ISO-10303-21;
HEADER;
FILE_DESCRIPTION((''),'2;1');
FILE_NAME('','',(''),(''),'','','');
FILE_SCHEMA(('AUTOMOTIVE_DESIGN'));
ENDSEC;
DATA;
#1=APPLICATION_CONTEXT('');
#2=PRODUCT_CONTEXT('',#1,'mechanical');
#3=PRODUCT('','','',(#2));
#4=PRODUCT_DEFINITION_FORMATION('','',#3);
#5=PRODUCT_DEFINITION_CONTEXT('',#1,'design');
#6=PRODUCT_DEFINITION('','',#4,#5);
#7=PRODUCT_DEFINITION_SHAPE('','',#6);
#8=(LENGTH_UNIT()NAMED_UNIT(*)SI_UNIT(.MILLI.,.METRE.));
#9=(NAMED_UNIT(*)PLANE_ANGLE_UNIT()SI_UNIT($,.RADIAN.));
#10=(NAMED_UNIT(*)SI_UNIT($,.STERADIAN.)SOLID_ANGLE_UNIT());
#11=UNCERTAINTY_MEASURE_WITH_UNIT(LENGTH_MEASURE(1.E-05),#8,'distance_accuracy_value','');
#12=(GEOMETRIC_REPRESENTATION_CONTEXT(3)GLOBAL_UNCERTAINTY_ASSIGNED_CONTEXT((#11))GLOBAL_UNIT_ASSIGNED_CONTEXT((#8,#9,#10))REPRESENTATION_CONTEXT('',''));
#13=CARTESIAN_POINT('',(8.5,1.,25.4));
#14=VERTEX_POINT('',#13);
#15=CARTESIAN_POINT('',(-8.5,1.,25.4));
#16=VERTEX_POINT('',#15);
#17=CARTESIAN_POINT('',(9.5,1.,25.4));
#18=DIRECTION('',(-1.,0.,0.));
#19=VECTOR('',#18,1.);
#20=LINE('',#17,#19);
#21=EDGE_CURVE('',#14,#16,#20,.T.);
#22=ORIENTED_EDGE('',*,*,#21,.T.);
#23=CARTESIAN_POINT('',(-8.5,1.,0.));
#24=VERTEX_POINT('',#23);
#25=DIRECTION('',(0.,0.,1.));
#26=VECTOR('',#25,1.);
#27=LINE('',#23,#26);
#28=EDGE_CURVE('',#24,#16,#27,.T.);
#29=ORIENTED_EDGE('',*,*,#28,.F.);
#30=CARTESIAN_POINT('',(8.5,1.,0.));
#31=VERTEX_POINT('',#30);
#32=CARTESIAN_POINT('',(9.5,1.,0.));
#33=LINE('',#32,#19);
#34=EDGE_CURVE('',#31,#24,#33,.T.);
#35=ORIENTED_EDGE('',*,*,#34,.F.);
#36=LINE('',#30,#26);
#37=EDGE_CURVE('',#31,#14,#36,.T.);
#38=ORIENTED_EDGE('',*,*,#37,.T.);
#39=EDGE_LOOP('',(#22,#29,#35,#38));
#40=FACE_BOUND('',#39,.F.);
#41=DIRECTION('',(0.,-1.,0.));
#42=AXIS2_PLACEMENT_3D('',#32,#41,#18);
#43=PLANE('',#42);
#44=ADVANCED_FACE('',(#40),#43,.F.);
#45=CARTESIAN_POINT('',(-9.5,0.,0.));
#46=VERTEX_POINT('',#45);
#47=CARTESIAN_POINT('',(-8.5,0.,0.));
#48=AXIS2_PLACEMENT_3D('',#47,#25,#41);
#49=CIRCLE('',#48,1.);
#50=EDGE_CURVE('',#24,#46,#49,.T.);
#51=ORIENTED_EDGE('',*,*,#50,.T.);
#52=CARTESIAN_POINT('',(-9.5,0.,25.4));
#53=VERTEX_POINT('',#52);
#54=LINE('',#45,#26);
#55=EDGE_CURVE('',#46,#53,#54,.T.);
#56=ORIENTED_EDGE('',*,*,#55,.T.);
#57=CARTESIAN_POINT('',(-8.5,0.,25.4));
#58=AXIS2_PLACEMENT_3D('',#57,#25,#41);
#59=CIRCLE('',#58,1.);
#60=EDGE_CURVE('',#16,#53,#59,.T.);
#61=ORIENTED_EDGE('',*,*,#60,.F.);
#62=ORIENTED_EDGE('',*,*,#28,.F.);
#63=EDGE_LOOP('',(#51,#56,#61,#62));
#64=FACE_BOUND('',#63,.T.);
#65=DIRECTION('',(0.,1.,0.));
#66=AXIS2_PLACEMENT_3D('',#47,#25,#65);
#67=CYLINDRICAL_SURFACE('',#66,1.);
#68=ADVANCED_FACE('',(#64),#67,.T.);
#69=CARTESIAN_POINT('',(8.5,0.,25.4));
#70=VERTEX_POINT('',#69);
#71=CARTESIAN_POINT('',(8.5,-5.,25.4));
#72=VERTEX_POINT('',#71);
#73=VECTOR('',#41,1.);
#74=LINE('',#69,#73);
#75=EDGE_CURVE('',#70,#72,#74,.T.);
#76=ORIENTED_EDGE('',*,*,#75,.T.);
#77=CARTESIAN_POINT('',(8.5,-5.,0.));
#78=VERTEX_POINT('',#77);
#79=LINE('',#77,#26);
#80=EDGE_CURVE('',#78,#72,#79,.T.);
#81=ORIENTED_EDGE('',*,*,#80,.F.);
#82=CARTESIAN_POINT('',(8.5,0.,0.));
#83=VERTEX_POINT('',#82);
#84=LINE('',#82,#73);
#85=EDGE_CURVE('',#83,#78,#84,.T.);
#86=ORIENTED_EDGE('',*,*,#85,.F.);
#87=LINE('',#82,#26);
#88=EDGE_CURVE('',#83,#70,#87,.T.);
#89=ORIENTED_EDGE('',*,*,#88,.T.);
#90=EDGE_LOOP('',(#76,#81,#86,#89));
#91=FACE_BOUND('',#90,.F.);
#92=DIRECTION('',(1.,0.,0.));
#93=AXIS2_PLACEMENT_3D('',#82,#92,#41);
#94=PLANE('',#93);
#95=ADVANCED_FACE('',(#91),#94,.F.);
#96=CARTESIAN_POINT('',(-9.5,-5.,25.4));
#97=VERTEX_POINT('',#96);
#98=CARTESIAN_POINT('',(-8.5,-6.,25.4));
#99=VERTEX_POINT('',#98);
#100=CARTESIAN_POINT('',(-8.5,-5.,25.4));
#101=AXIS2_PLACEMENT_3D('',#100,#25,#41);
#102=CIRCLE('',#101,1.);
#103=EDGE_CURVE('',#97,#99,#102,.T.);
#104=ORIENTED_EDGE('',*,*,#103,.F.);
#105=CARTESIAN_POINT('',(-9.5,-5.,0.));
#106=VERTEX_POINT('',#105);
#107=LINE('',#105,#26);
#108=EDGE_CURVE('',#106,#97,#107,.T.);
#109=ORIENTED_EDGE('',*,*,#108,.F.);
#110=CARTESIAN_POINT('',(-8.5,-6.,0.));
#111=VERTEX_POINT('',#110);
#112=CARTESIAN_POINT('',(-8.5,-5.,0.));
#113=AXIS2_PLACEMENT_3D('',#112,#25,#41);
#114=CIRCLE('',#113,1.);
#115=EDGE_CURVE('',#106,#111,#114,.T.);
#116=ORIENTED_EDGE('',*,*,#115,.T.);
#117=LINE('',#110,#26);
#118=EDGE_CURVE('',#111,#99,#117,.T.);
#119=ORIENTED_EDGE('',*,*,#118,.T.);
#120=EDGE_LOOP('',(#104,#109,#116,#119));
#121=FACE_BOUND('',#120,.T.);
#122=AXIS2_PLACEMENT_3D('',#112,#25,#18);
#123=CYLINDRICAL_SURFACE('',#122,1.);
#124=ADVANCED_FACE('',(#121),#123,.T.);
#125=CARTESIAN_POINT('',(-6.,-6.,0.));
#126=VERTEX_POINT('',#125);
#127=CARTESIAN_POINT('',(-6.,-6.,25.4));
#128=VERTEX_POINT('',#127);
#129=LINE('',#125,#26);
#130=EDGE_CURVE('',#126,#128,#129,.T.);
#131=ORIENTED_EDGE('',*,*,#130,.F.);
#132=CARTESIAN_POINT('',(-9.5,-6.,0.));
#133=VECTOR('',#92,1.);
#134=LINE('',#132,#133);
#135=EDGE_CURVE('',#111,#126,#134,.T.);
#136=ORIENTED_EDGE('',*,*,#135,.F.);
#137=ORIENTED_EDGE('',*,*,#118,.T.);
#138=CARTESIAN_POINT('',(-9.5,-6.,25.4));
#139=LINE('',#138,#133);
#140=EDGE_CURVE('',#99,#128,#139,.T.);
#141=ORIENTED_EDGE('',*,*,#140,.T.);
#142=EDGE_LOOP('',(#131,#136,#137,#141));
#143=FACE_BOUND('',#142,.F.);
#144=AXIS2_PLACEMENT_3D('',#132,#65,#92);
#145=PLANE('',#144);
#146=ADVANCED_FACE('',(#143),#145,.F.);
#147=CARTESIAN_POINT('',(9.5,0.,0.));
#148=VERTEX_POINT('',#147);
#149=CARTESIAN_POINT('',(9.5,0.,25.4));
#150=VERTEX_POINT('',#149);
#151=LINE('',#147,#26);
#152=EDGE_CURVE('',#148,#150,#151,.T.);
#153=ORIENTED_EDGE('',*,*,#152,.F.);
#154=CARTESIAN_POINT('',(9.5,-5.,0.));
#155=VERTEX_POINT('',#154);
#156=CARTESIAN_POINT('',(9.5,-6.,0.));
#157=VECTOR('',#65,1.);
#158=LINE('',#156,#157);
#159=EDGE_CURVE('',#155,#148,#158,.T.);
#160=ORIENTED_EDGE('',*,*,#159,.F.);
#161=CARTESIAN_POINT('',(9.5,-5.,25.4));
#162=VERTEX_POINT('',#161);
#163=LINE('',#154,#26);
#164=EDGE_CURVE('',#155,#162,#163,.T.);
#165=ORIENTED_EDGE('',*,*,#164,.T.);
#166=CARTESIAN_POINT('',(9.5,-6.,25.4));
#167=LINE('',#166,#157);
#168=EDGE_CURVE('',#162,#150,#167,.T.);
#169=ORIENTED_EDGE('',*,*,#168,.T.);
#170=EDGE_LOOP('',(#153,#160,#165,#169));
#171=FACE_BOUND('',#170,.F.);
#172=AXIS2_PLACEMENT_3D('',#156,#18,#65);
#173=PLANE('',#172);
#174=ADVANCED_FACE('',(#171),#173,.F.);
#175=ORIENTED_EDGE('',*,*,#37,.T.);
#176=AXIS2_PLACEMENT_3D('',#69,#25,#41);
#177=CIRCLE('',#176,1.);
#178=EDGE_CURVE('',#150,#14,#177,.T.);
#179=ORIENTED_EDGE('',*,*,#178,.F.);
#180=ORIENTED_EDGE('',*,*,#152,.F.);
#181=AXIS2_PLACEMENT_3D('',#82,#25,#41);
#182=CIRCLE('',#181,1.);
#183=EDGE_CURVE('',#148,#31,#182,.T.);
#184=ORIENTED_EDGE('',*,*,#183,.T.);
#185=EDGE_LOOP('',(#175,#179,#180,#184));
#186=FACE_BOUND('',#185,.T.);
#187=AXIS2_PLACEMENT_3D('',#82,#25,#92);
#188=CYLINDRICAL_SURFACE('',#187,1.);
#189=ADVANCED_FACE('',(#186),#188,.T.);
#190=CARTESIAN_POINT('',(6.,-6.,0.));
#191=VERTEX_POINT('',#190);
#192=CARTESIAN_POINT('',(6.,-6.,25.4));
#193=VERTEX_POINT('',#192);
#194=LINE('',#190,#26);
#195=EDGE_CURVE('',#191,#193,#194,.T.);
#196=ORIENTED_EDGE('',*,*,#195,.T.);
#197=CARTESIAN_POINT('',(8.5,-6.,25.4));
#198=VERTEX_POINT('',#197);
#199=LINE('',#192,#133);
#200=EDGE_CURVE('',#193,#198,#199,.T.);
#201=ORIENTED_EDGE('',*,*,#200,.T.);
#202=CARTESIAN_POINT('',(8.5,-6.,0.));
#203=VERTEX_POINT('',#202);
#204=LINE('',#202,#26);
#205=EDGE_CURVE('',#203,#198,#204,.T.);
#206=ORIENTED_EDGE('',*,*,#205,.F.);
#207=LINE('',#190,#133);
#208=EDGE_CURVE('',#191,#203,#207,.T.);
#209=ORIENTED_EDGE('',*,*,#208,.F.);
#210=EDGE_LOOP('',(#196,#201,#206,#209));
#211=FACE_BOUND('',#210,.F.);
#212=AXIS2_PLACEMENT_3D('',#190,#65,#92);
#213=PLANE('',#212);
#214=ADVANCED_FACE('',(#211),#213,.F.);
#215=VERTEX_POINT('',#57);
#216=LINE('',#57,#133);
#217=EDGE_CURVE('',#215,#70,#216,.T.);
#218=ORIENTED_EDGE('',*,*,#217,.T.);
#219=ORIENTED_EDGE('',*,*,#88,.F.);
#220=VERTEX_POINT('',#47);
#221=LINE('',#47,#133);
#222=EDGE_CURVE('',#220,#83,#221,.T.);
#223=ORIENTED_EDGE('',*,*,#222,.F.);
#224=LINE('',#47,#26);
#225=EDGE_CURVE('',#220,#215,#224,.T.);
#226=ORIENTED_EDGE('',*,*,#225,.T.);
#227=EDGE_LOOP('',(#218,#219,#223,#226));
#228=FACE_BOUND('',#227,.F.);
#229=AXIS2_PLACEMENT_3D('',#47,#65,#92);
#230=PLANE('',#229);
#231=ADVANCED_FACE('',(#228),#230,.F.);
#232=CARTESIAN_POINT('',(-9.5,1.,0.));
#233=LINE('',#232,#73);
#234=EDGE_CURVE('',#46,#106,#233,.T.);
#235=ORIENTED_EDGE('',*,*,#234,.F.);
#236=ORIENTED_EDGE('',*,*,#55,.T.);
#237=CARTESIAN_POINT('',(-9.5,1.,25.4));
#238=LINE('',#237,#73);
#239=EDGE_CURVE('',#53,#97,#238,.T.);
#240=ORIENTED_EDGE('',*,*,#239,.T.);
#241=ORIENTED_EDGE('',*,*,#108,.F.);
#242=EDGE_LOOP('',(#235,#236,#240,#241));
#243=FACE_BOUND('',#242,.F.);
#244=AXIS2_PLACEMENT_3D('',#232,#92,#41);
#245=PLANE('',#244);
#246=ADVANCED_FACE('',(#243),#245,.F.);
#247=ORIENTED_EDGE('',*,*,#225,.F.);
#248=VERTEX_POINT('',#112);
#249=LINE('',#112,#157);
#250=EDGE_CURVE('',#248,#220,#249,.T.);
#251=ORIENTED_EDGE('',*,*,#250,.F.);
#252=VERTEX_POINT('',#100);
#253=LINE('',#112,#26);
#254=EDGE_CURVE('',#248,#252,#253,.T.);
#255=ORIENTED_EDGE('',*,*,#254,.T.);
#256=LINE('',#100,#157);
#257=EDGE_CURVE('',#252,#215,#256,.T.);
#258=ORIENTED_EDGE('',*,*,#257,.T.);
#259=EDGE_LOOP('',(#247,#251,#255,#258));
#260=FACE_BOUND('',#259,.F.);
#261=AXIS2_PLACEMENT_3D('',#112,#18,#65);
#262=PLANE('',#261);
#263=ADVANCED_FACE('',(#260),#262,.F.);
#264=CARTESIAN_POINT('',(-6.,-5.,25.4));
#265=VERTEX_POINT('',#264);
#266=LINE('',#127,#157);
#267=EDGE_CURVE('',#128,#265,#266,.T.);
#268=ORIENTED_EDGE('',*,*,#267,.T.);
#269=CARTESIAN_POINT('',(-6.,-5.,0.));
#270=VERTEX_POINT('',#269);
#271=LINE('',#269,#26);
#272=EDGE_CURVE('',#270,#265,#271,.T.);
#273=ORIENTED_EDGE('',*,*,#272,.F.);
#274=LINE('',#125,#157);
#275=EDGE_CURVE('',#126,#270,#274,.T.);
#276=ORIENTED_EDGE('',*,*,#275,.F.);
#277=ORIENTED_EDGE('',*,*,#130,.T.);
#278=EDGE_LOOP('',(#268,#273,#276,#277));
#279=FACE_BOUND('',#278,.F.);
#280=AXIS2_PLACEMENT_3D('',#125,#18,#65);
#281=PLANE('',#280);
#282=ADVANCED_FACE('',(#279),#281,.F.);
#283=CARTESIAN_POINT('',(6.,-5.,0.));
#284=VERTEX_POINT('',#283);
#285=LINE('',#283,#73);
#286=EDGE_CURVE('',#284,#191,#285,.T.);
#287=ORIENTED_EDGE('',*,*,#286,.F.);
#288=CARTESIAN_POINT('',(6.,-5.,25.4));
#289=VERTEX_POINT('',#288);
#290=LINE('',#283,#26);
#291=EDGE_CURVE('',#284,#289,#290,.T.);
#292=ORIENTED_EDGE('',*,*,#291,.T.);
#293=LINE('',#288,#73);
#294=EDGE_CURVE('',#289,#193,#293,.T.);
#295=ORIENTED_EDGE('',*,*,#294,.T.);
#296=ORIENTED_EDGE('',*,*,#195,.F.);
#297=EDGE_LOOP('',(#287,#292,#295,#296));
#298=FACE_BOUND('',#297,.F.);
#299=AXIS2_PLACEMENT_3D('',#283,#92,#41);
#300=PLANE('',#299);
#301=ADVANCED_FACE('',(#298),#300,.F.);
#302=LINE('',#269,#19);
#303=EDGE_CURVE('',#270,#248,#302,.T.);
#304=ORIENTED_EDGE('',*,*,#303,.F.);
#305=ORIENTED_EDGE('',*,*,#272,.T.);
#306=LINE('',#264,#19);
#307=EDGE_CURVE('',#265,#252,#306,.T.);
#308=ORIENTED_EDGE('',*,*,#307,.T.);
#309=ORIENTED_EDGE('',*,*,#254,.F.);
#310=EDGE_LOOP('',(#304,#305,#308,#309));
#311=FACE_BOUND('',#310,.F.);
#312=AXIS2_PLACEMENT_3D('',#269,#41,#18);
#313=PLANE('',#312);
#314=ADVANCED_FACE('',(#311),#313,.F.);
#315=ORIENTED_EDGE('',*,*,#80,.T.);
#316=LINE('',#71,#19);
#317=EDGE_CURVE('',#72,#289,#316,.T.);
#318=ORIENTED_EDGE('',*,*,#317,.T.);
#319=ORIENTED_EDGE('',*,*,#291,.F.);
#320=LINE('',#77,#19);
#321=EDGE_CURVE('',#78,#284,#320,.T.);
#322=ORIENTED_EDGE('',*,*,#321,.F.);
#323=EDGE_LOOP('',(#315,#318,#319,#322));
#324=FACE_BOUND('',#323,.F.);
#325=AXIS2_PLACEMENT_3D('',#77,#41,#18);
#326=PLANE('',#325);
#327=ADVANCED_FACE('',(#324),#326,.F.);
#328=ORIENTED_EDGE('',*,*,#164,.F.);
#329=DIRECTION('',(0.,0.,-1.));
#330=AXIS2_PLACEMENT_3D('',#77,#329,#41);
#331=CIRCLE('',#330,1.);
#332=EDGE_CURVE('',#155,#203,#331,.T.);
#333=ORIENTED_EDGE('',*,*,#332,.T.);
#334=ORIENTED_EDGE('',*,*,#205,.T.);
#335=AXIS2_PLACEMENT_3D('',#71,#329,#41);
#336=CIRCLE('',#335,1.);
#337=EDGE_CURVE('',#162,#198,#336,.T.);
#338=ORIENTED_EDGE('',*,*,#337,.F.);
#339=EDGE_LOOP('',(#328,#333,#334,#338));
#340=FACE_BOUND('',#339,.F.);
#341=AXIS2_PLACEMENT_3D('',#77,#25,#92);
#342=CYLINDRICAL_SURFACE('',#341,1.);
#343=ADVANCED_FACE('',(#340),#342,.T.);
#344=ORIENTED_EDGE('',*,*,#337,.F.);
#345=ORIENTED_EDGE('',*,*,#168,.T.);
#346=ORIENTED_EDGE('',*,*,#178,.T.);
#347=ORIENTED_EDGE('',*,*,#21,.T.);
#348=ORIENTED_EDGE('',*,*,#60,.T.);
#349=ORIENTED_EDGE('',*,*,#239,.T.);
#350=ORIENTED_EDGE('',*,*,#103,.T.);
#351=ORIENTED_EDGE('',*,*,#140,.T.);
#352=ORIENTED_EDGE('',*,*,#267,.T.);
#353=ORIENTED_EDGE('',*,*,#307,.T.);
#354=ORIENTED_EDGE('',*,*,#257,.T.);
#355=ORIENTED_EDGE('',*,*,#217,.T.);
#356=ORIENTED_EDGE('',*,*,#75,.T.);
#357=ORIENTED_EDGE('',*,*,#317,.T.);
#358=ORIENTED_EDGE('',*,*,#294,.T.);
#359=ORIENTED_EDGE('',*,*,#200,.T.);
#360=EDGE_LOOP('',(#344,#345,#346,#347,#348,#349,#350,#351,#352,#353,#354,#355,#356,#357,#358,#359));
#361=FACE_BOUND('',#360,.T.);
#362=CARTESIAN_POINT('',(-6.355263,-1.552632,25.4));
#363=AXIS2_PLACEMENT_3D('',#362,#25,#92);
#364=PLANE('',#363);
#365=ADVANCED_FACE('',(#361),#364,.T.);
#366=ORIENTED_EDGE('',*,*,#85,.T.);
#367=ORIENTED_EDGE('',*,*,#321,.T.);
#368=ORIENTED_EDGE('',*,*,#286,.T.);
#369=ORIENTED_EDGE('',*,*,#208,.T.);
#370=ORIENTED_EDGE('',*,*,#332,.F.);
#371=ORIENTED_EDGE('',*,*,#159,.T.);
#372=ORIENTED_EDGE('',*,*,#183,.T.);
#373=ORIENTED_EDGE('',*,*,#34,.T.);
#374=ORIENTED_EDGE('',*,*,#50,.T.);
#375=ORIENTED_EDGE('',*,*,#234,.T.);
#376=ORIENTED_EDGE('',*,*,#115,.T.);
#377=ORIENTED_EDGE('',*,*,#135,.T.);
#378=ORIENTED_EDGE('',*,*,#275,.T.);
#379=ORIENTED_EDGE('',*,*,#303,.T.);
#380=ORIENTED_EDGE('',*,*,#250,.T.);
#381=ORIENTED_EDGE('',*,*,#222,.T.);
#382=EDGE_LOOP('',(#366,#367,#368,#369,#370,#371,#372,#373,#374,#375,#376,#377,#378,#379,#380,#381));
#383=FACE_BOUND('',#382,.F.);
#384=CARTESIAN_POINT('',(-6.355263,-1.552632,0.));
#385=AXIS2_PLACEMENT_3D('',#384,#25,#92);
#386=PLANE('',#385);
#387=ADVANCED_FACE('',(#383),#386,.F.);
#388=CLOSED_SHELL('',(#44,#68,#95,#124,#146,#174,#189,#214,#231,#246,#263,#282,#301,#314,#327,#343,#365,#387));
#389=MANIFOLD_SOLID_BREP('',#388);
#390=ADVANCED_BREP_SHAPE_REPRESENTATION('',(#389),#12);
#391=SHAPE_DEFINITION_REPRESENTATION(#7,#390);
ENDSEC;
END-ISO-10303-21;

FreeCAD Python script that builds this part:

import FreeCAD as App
import Part
import Sketcher


def edges_at(feature, points):
    """Names of the edges that pass closest to the given points."""
    edges = feature.Shape.Edges
    near = lambda p: min(range(len(edges)), key=lambda i: edges[i].distToShape(Part.Vertex(*p))[0])
    return sorted({f"Edge{near(p) + 1}" for p in points})

doc = App.newDocument("Part")
params = doc.addObject("Spreadsheet::Sheet", "Params")
for row, (alias, value) in enumerate([
    ("sketch1_width", "17 mm"),
    ("sketch1_width2", "19 mm"),
    ("sketch1_height", "5 mm"),
    ("sketch1_height2", "1 mm"),
    ("sketch1_height3", "7 mm"),
    ("pad1_length", "25.4 mm"),
    ("fillet_radius", "1 mm"),
    ("fillet2_radius", "1 mm"),
], start=1):
    params.set(f"A{row}", alias)
    params.set(f"B{row}", "=" + value)
    params.setAlias(f"B{row}", alias)

body = doc.addObject("PartDesign::Body", "Body")

# Sketch on XY plane
sketch1 = body.newObject("Sketcher::SketchObject", "Sketch")
sketch1.AttachmentSupport = (doc.getObject("XY_Plane"), [""])
sketch1.MapMode = "FlatFace"
sketch1.addGeometry([
    Part.LineSegment(App.Vector(-8.5, 0, 0), App.Vector(8.5, 0, 0)),  # 0
    Part.LineSegment(App.Vector(8.5, 0, 0), App.Vector(8.5, -5, 0)),  # 1
    Part.LineSegment(App.Vector(8.5, -5, 0), App.Vector(6, -5, 0)),  # 2
    Part.LineSegment(App.Vector(6, -5, 0), App.Vector(6, -6, 0)),  # 3
    Part.LineSegment(App.Vector(6, -6, 0), App.Vector(9.5, -6, 0)),  # 4
    Part.LineSegment(App.Vector(9.5, -6, 0), App.Vector(9.5, 1, 0)),  # 5
    Part.LineSegment(App.Vector(9.5, 1, 0), App.Vector(-9.5, 1, 0)),  # 6
    Part.LineSegment(App.Vector(-9.5, 1, 0), App.Vector(-9.5, -6, 0)),  # 7
    Part.LineSegment(App.Vector(-9.5, -6, 0), App.Vector(-6, -6, 0)),  # 8
    Part.LineSegment(App.Vector(-6, -6, 0), App.Vector(-6, -5, 0)),  # 9
    Part.LineSegment(App.Vector(-6, -5, 0), App.Vector(-8.5, -5, 0)),  # 10
    Part.LineSegment(App.Vector(-8.5, -5, 0), App.Vector(-8.5, 0, 0)),  # 11
], False)
sketch1.addConstraint([
    Sketcher.Constraint("Coincident", 0, 2, 1, 1),
    Sketcher.Constraint("Coincident", 1, 2, 2, 1),
    Sketcher.Constraint("Coincident", 2, 2, 3, 1),
    Sketcher.Constraint("Coincident", 3, 2, 4, 1),
    Sketcher.Constraint("Coincident", 4, 2, 5, 1),
    Sketcher.Constraint("Coincident", 5, 2, 6, 1),
    Sketcher.Constraint("Coincident", 6, 2, 7, 1),
    Sketcher.Constraint("Coincident", 7, 2, 8, 1),
    Sketcher.Constraint("Coincident", 8, 2, 9, 1),
    Sketcher.Constraint("Coincident", 9, 2, 10, 1),
    Sketcher.Constraint("Coincident", 10, 2, 11, 1),
    Sketcher.Constraint("Coincident", 11, 2, 0, 1),
    Sketcher.Constraint("Horizontal", 0),
    Sketcher.Constraint("Vertical", 1),
    Sketcher.Constraint("Horizontal", 2),
    Sketcher.Constraint("Vertical", 3),
    Sketcher.Constraint("Horizontal", 4),
    Sketcher.Constraint("Vertical", 5),
    Sketcher.Constraint("Horizontal", 6),
    Sketcher.Constraint("Vertical", 7),
    Sketcher.Constraint("Horizontal", 8),
    Sketcher.Constraint("Vertical", 9),
    Sketcher.Constraint("Horizontal", 10),
    Sketcher.Constraint("Vertical", 11),
    Sketcher.Constraint("Symmetric", 0, 2, 11, 2, -1, 1),
    Sketcher.Constraint("Symmetric", 4, 2, 7, 2, -2),
    Sketcher.Constraint("Symmetric", 2, 2, 9, 2, -2),
    Sketcher.Constraint("DistanceX", 0, 1, 0, 2, 17.0),
    Sketcher.Constraint("DistanceX", 6, 2, 6, 1, 19.0),
    Sketcher.Constraint("DistanceY", 1, 2, 1, 1, 5.0),
    Sketcher.Constraint("DistanceY", 3, 2, 3, 1, 1.0),
    Sketcher.Constraint("DistanceY", 5, 1, 5, 2, 7.0),
    Sketcher.Constraint("DistanceX", 2, 2, 2, 1, 2.5),
])
sketch1.setExpression("Constraints[27]", "Params.sketch1_width")
sketch1.setExpression("Constraints[28]", "Params.sketch1_width2")
sketch1.setExpression("Constraints[29]", "Params.sketch1_height")
sketch1.setExpression("Constraints[30]", "Params.sketch1_height2")
sketch1.setExpression("Constraints[31]", "Params.sketch1_height3")
pad1 = body.newObject("PartDesign::Pad", "Pad")
pad1.Profile = sketch1
pad1.setExpression("Length", "Params.pad1_length")
doc.recompute()

fillet = body.newObject("PartDesign::Fillet", "Fillet")
fillet.Base = (pad1, edges_at(pad1, [(-9.5, 1, 12.7), (9.5, 1, 12.7)]))
fillet.setExpression("Radius", "Params.fillet_radius")
doc.recompute()

fillet2 = body.newObject("PartDesign::Fillet", "Fillet001")
fillet2.Base = (fillet, edges_at(fillet, [(-9.5, -6, 12.7), (9.5, -6, 12.7)]))
fillet2.setExpression("Radius", "Params.fillet2_radius")

doc.recompute()
